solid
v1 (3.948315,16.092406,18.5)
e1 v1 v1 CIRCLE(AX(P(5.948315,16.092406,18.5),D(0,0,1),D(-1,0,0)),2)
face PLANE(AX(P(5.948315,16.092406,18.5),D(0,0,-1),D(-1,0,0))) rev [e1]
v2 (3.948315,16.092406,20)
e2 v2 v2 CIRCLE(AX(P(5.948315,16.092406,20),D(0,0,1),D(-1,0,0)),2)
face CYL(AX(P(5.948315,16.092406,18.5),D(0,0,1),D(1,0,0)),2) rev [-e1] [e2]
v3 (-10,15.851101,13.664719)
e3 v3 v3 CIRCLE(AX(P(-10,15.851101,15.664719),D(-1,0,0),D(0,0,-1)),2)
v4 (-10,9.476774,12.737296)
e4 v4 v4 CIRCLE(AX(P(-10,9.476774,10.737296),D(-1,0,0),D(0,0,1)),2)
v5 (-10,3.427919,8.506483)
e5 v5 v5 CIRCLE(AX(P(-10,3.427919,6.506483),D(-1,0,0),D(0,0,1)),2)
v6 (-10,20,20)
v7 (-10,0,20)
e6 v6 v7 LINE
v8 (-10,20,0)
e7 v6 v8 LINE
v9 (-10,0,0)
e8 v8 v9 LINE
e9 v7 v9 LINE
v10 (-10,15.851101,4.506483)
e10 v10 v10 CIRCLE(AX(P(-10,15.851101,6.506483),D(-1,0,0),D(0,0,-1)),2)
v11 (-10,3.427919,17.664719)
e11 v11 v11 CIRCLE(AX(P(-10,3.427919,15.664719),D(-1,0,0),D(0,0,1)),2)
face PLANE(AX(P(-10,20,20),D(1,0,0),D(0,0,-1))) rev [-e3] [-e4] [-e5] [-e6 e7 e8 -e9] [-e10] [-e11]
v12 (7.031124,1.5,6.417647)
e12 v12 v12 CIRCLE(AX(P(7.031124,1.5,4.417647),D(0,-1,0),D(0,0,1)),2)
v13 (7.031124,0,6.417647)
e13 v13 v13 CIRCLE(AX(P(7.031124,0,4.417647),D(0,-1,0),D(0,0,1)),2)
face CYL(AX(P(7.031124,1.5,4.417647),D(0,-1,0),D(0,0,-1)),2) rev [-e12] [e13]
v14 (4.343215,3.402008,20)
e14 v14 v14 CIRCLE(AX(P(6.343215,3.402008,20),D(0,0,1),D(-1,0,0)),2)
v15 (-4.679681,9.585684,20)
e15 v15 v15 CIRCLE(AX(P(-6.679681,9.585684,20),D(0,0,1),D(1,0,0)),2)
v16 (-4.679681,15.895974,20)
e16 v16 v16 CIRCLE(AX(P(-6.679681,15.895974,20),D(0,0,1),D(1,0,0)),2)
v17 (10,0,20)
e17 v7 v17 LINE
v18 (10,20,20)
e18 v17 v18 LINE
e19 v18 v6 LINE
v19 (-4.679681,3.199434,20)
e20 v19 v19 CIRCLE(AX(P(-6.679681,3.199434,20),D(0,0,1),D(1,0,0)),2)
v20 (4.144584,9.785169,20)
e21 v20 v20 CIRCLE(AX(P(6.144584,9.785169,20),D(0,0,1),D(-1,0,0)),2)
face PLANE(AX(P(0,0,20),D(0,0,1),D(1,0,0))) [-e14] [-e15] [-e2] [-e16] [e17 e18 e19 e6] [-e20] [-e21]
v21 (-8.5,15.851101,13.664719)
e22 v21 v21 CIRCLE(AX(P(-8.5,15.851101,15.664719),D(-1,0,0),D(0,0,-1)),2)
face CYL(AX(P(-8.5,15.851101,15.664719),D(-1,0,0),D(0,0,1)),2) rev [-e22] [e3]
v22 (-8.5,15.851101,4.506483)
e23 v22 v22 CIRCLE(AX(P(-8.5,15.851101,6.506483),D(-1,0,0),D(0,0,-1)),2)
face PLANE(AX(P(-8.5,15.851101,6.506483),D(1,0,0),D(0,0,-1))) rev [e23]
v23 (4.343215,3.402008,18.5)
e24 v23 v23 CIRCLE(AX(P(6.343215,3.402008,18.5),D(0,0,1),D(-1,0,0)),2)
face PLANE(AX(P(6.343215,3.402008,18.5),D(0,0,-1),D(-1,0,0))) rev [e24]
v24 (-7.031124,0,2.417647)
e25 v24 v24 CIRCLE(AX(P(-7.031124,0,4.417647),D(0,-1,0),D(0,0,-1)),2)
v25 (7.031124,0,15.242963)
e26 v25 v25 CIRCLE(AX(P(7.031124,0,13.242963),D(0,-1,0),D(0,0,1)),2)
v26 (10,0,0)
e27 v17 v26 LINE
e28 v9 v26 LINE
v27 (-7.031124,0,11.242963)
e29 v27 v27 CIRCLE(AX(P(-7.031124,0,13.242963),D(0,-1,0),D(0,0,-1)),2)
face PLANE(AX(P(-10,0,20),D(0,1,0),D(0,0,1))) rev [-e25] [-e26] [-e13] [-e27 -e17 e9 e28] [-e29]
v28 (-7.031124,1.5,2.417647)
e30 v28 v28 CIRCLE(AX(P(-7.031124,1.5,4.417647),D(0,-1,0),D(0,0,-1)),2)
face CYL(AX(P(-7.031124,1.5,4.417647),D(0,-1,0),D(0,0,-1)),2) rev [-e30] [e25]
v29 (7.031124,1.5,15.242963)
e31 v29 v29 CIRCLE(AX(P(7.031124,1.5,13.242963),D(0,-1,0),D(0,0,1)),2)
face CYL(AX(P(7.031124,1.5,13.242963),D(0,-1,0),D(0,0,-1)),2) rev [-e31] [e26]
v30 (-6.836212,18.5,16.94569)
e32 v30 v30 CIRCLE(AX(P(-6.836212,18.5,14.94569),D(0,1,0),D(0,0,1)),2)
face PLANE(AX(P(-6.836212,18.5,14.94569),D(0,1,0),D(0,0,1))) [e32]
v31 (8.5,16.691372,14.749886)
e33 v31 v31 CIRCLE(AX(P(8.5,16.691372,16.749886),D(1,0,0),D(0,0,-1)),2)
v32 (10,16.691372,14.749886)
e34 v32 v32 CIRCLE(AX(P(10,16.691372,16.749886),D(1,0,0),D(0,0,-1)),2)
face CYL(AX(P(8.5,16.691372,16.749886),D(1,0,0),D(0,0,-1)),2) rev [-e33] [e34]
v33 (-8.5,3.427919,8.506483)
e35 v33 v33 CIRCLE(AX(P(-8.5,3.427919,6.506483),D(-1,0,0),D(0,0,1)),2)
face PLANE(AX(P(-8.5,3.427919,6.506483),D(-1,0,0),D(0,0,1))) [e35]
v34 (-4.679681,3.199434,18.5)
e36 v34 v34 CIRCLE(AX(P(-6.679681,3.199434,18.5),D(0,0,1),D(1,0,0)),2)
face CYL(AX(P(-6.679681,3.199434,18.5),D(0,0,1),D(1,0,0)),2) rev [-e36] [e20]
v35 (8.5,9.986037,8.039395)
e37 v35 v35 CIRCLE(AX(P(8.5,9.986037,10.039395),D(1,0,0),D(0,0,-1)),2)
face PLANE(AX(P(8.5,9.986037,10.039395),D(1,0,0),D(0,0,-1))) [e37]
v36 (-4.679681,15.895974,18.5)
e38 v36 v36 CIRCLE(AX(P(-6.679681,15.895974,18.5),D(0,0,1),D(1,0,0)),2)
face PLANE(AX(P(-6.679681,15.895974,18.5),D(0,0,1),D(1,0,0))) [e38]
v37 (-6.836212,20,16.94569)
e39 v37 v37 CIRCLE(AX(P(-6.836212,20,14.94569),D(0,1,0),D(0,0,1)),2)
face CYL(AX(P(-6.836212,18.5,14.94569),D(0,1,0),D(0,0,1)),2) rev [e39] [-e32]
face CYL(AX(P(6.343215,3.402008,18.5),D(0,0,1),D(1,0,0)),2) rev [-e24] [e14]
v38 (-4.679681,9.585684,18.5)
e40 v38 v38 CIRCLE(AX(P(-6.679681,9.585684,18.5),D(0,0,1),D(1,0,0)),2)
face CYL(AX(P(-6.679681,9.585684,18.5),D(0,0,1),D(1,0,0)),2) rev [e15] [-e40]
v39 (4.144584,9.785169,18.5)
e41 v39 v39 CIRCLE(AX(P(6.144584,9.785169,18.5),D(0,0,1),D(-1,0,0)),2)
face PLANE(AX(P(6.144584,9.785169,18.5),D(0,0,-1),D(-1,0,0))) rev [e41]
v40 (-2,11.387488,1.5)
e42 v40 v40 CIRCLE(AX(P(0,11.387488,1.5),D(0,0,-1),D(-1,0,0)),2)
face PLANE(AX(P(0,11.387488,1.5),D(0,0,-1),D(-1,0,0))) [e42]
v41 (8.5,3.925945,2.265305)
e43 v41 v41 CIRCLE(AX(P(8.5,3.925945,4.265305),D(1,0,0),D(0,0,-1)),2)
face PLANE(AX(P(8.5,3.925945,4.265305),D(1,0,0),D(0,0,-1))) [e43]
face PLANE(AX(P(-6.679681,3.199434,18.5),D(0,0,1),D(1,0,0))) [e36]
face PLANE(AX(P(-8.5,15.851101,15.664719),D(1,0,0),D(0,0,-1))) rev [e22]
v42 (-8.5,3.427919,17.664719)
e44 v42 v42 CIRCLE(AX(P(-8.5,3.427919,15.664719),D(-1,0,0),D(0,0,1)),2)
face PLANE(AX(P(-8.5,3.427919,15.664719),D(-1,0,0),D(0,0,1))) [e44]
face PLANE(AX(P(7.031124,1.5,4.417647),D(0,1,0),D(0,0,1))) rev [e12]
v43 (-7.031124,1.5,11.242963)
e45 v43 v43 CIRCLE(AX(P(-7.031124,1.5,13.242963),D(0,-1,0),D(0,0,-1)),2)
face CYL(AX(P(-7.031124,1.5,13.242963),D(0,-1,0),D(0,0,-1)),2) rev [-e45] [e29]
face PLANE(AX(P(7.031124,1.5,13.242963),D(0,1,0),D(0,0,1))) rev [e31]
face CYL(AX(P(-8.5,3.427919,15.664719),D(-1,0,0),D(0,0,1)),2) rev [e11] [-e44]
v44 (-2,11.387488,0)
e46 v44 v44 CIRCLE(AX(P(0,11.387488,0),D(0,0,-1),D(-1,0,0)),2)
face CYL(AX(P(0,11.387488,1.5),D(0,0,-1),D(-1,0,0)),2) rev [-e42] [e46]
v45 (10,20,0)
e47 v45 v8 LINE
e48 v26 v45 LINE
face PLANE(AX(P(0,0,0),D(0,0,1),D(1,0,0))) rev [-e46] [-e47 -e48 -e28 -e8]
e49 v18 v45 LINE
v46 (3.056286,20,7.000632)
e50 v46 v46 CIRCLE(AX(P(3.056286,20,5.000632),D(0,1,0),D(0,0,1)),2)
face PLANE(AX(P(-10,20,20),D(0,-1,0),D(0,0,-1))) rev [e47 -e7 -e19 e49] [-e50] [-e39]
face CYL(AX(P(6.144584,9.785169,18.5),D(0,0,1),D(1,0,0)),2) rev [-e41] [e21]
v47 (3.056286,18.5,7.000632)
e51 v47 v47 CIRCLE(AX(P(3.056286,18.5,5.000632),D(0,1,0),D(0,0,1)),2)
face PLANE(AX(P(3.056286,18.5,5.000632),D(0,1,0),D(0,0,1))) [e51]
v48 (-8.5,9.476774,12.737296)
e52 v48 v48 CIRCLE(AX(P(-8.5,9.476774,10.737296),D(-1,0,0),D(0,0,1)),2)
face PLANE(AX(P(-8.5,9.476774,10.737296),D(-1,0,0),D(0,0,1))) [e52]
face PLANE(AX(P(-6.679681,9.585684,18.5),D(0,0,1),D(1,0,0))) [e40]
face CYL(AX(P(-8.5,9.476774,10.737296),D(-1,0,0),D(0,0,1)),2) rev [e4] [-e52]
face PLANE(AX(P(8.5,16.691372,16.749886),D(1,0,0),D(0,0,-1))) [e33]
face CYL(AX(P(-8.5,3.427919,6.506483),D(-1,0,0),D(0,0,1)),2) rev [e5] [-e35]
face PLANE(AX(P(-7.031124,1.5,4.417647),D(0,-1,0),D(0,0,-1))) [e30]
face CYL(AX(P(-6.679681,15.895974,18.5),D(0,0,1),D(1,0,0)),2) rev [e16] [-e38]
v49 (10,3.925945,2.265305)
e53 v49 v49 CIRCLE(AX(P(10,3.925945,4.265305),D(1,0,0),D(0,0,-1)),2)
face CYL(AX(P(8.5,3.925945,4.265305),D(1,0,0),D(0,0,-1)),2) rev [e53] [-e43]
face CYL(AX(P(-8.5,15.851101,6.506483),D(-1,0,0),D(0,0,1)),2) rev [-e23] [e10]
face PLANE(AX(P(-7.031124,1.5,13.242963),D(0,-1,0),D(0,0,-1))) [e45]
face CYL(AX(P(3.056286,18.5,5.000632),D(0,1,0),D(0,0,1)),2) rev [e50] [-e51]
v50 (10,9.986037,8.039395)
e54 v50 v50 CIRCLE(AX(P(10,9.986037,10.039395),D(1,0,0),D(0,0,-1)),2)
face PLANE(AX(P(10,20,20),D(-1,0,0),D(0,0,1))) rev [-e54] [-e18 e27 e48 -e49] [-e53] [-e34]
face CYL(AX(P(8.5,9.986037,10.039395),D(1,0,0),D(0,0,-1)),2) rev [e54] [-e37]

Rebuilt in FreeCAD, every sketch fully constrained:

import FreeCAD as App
import Part
import Sketcher
from FreeCAD import Vector
Q = App.Units.Quantity


def add_polygon(sketch, points):
    """Adds a closed chain of lines whose ends are joined by coincident constraints."""
    first, n = sketch.GeometryCount, len(points)
    for a, b in zip(points, points[1:] + points[:1]):
        sketch.addGeometry(Part.LineSegment(App.Vector(*a, 0), App.Vector(*b, 0)), False)
    for i in range(n):
        sketch.addConstraint(Sketcher.Constraint("Coincident", first + i, 2, first + (i + 1) % n, 1))

doc = App.newDocument("Part")
params = doc.addObject("Spreadsheet::Sheet", "Params")
for row, (alias, value) in enumerate([
    ("sketch1_width", "20 mm"),
    ("pad1_length", "20 mm"),
    ("sketch2_diameter", "4 mm"),
    ("pocket1_length", "1.5 mm"),
    ("sketch3_diameter", "4 mm"),
    ("pocket2_length", "1.5 mm"),
    ("sketch4_diameter", "4 mm"),
    ("pocket3_length", "1.5 mm"),
    ("sketch5_diameter", "4 mm"),
    ("pocket4_length", "1.5 mm"),
    ("sketch6_diameter", "4 mm"),
    ("pocket5_length", "1.5 mm"),
    ("sketch7_diameter", "4 mm"),
    ("pocket6_length", "1.5 mm"),
    ("sketch8_diameter", "4 mm"),
    ("pocket7_length", "1.5 mm"),
], start=1):
    params.set(f"A{row}", alias)
    params.set(f"B{row}", "=" + value)
    params.setAlias(f"B{row}", alias)

body = doc.addObject("PartDesign::Body", "Body")

sketch1 = body.newObject("Sketcher::SketchObject", "Sketch")
sketch1.AttachmentSupport = (doc.getObject("XY_Plane"), [""])
sketch1.MapMode = "FlatFace"
add_polygon(sketch1, [(-10, 20), (-10, 0), (10, 0), (10, 20)])
sketch1.addConstraint([
    Sketcher.Constraint("Vertical", 0),
    Sketcher.Constraint("Horizontal", 1),
    Sketcher.Constraint("Vertical", 2),
    Sketcher.Constraint("Horizontal", 3),
    Sketcher.Constraint("Symmetric", 0, 2, 1, 2, -1, 1),
    Sketcher.Constraint("Equal", 3, 0),
    Sketcher.Constraint("DistanceX", 1, 1, 1, 2, Q("20 mm")),
])
sketch1.setExpression("Constraints[10]", "Params.sketch1_width")
pad1 = body.newObject("PartDesign::Pad", "Pad")
pad1.Profile = sketch1
pad1.setExpression("Length", "Params.pad1_length")

sketch2 = body.newObject("Sketcher::SketchObject", "Sketch001")
sketch2.AttachmentSupport = (doc.getObject("XY_Plane"), [""])
sketch2.MapMode = "FlatFace"
sketch2.addGeometry(Part.Circle(Vector(0, 11.387488, 0), Vector(0, 0, 1), 2), False)
sketch2.addConstraint([
    Sketcher.Constraint("PointOnObject", 0, 3, -2),
    Sketcher.Constraint("Diameter", 0, Q("4 mm")),
    Sketcher.Constraint("DistanceY", -1, 1, 0, 3, Q("11.387488 mm")),
])
sketch2.setExpression("Constraints[1]", "Params.sketch2_diameter")
pocket1 = body.newObject("PartDesign::Pocket", "Pocket")
pocket1.Profile = sketch2
pocket1.setExpression("Length", "Params.pocket1_length")
pocket1.Reversed = True

sketch3 = body.newObject("Sketcher::SketchObject", "Sketch002")
sketch3.AttachmentSupport = (doc.getObject("XY_Plane"), [""])
sketch3.MapMode = "FlatFace"
sketch3.AttachmentOffset = App.Placement(Vector(0, 0, 20), App.Rotation())
sketch3.addGeometry([
    Part.Circle(Vector(-6.679681, 3.199434, 0), Vector(0, 0, 1), 2),
    Part.Circle(Vector(-6.679681, 9.585684, 0), Vector(0, 0, 1), 2),
    Part.Circle(Vector(-6.679681, 15.895974, 0), Vector(0, 0, 1), 2),
    Part.Circle(Vector(5.948315, 16.092406, 0), Vector(0, 0, 1), 2),
    Part.Circle(Vector(6.144584, 9.785169, 0), Vector(0, 0, 1), 2),
    Part.Circle(Vector(6.343215, 3.402008, 0), Vector(0, 0, 1), 2),
], False)
sketch3.addConstraint([
    Sketcher.Constraint("Equal", 0, 1),
    Sketcher.Constraint("Equal", 1, 2),
    Sketcher.Constraint("Equal", 2, 3),
    Sketcher.Constraint("Equal", 3, 4),
    Sketcher.Constraint("Equal", 4, 5),
    Sketcher.Constraint("Vertical", 0, 3, 1, 3),
    Sketcher.Constraint("Vertical", 1, 3, 2, 3),
    Sketcher.Constraint("Diameter", 0, Q("4 mm")),
    Sketcher.Constraint("DistanceX", 3, 3, 5, 3, Q("0.3949 mm")),
    Sketcher.Constraint("DistanceX", 0, 3, -1, 1, Q("6.679681 mm")),
    Sketcher.Constraint("DistanceY", -1, 1, 4, 3, Q("9.785169 mm")),
    Sketcher.Constraint("DistanceY", 0, 3, 1, 3, Q("6.386251 mm")),
    Sketcher.Constraint("DistanceY", 1, 3, 2, 3, Q("6.31029 mm")),
    Sketcher.Constraint("DistanceY", 2, 3, 3, 3, Q("0.196431 mm")),
    Sketcher.Constraint("DistanceX", 3, 3, 4, 3, Q("0.196269 mm")),
    Sketcher.Constraint("DistanceY", 5, 3, 4, 3, Q("6.383161 mm")),
    Sketcher.Constraint("DistanceY", -1, 1, 0, 3, Q("3.199434 mm")),
    Sketcher.Constraint("DistanceX", -1, 1, 3, 3, Q("5.948315 mm")),
])
sketch3.setExpression("Constraints[7]", "Params.sketch3_diameter")
pocket2 = body.newObject("PartDesign::Pocket", "Pocket001")
pocket2.Profile = sketch3
pocket2.setExpression("Length", "Params.pocket2_length")

sketch4 = body.newObject("Sketcher::SketchObject", "Sketch003")
sketch4.AttachmentSupport = (doc.getObject("XZ_Plane"), [""])
sketch4.MapMode = "FlatFace"
sketch4.addGeometry([
    Part.Circle(Vector(-7.031124, 4.417647, 0), Vector(0, 0, 1), 2),
    Part.Circle(Vector(-7.031124, 13.242963, 0), Vector(0, 0, 1), 2),
    Part.Circle(Vector(7.031124, 13.242963, 0), Vector(0, 0, 1), 2),
    Part.Circle(Vector(7.031124, 4.417647, 0), Vector(0, 0, 1), 2),
], False)
sketch4.addConstraint([
    Sketcher.Constraint("Equal", 0, 1),
    Sketcher.Constraint("Equal", 1, 2),
    Sketcher.Constraint("Equal", 2, 3),
    Sketcher.Constraint("Symmetric", 1, 3, 2, 3, -2),
    Sketcher.Constraint("Symmetric", 0, 3, 3, 3, -2),
    Sketcher.Constraint("Vertical", 0, 3, 1, 3),
    Sketcher.Constraint("Diameter", 0, Q("4 mm")),
    Sketcher.Constraint("DistanceX", 0, 3, -1, 1, Q("7.031124 mm")),
    Sketcher.Constraint("DistanceY", -1, 1, 0, 3, Q("4.417647 mm")),
    Sketcher.Constraint("DistanceY", -1, 1, 1, 3, Q("13.242963 mm")),
])
sketch4.setExpression("Constraints[6]", "Params.sketch4_diameter")
pocket3 = body.newObject("PartDesign::Pocket", "Pocket002")
pocket3.Profile = sketch4
pocket3.setExpression("Length", "Params.pocket3_length")

sketch5 = body.newObject("Sketcher::SketchObject", "Sketch004")
sketch5.AttachmentSupport = (doc.getObject("XZ_Plane"), [""])
sketch5.MapMode = "FlatFace"
sketch5.AttachmentOffset = App.Placement(Vector(0, 0, -20), App.Rotation())
sketch5.addGeometry([
    Part.Circle(Vector(-6.836212, 14.94569, 0), Vector(0, 0, 1), 2),
    Part.Circle(Vector(3.056286, 5.000632, 0), Vector(0, 0, 1), 2),
], False)
sketch5.addConstraint([
    Sketcher.Constraint("Equal", 0, 1),
    Sketcher.Constraint("Diameter", 0, Q("4 mm")),
    Sketcher.Constraint("DistanceX", 0, 3, 1, 3, Q("9.892498 mm")),
    Sketcher.Constraint("DistanceX", 0, 3, -1, 1, Q("6.836212 mm")),
    Sketcher.Constraint("DistanceY", -1, 1, 0, 3, Q("14.94569 mm")),
    Sketcher.Constraint("DistanceY", -1, 1, 1, 3, Q("5.000632 mm")),
])
sketch5.setExpression("Constraints[1]", "Params.sketch5_diameter")
pocket4 = body.newObject("PartDesign::Pocket", "Pocket003")
pocket4.Profile = sketch5
pocket4.setExpression("Length", "Params.pocket4_length")
pocket4.Reversed = True

sketch6 = body.newObject("Sketcher::SketchObject", "Sketch005")
sketch6.AttachmentSupport = (doc.getObject("YZ_Plane"), [""])
sketch6.MapMode = "FlatFace"
sketch6.AttachmentOffset = App.Placement(Vector(0, 0, -10), App.Rotation())
sketch6.addGeometry([
    Part.Circle(Vector(3.427919, 15.664719, 0), Vector(0, 0, 1), 2),
    Part.Circle(Vector(3.427919, 6.506483, 0), Vector(0, 0, 1), 2),
    Part.Circle(Vector(15.851101, 6.506483, 0), Vector(0, 0, 1), 2),
    Part.Circle(Vector(15.851101, 15.664719, 0), Vector(0, 0, 1), 2),
], False)
sketch6.addConstraint([
    Sketcher.Constraint("Equal", 0, 1),
    Sketcher.Constraint("Equal", 1, 2),
    Sketcher.Constraint("Equal", 2, 3),
    Sketcher.Constraint("Horizontal", 1, 3, 2, 3),
    Sketcher.Constraint("Horizontal", 0, 3, 3, 3),
    Sketcher.Constraint("Vertical", 0, 3, 1, 3),
    Sketcher.Constraint("Vertical", 2, 3, 3, 3),
    Sketcher.Constraint("Diameter", 0, Q("4 mm")),
    Sketcher.Constraint("DistanceX", -1, 1, 2, 3, Q("15.851101 mm")),
    Sketcher.Constraint("DistanceX", -1, 1, 0, 3, Q("3.427919 mm")),
    Sketcher.Constraint("DistanceY", -1, 1, 0, 3, Q("15.664719 mm")),
    Sketcher.Constraint("DistanceY", -1, 1, 1, 3, Q("6.506483 mm")),
])
sketch6.setExpression("Constraints[7]", "Params.sketch6_diameter")
pocket5 = body.newObject("PartDesign::Pocket", "Pocket004")
pocket5.Profile = sketch6
pocket5.setExpression("Length", "Params.pocket5_length")
pocket5.Reversed = True

sketch7 = body.newObject("Sketcher::SketchObject", "Sketch006")
sketch7.AttachmentSupport = (doc.getObject("YZ_Plane"), [""])
sketch7.MapMode = "FlatFace"
sketch7.AttachmentOffset = App.Placement(Vector(0, 0, -10), App.Rotation())
sketch7.addGeometry(Part.Circle(Vector(9.476774, 10.737296, 0), Vector(0, 0, 1), 2), False)
sketch7.addConstraint([
    Sketcher.Constraint("Diameter", 0, Q("4 mm")),
    Sketcher.Constraint("DistanceX", -1, 1, 0, 3, Q("9.476774 mm")),
    Sketcher.Constraint("DistanceY", -1, 1, 0, 3, Q("10.737296 mm")),
])
sketch7.setExpression("Constraints[0]", "Params.sketch7_diameter")
pocket6 = body.newObject("PartDesign::Pocket", "Pocket005")
pocket6.Profile = sketch7
pocket6.setExpression("Length", "Params.pocket6_length")
pocket6.Reversed = True

sketch8 = body.newObject("Sketcher::SketchObject", "Sketch007")
sketch8.AttachmentSupport = (doc.getObject("YZ_Plane"), [""])
sketch8.MapMode = "FlatFace"
sketch8.AttachmentOffset = App.Placement(Vector(0, 0, 10), App.Rotation())
sketch8.addGeometry([
    Part.Circle(Vector(16.691372, 16.749886, 0), Vector(0, 0, 1), 2),
    Part.Circle(Vector(9.986037, 10.039395, 0), Vector(0, 0, 1), 2),
    Part.Circle(Vector(3.925945, 4.265305, 0), Vector(0, 0, 1), 2),
], False)
sketch8.addConstraint([
    Sketcher.Constraint("Equal", 0, 1),
    Sketcher.Constraint("Equal", 1, 2),
    Sketcher.Constraint("Diameter", 0, Q("4 mm")),
    Sketcher.Constraint("DistanceX", -1, 1, 0, 3, Q("16.691372 mm")),
    Sketcher.Constraint("DistanceY", 1, 3, 0, 3, Q("6.710491 mm")),
    Sketcher.Constraint("DistanceY", 2, 3, 1, 3, Q("5.77409 mm")),
    Sketcher.Constraint("DistanceY", -1, 1, 0, 3, Q("16.749886 mm")),
    Sketcher.Constraint("DistanceX", -1, 1, 1, 3, Q("9.986037 mm")),
    Sketcher.Constraint("DistanceX", -1, 1, 2, 3, Q("3.925945 mm")),
])
sketch8.setExpression("Constraints[2]", "Params.sketch8_diameter")
pocket7 = body.newObject("PartDesign::Pocket", "Pocket006")
pocket7.Profile = sketch8
pocket7.setExpression("Length", "Params.pocket7_length")

doc.recompute()
